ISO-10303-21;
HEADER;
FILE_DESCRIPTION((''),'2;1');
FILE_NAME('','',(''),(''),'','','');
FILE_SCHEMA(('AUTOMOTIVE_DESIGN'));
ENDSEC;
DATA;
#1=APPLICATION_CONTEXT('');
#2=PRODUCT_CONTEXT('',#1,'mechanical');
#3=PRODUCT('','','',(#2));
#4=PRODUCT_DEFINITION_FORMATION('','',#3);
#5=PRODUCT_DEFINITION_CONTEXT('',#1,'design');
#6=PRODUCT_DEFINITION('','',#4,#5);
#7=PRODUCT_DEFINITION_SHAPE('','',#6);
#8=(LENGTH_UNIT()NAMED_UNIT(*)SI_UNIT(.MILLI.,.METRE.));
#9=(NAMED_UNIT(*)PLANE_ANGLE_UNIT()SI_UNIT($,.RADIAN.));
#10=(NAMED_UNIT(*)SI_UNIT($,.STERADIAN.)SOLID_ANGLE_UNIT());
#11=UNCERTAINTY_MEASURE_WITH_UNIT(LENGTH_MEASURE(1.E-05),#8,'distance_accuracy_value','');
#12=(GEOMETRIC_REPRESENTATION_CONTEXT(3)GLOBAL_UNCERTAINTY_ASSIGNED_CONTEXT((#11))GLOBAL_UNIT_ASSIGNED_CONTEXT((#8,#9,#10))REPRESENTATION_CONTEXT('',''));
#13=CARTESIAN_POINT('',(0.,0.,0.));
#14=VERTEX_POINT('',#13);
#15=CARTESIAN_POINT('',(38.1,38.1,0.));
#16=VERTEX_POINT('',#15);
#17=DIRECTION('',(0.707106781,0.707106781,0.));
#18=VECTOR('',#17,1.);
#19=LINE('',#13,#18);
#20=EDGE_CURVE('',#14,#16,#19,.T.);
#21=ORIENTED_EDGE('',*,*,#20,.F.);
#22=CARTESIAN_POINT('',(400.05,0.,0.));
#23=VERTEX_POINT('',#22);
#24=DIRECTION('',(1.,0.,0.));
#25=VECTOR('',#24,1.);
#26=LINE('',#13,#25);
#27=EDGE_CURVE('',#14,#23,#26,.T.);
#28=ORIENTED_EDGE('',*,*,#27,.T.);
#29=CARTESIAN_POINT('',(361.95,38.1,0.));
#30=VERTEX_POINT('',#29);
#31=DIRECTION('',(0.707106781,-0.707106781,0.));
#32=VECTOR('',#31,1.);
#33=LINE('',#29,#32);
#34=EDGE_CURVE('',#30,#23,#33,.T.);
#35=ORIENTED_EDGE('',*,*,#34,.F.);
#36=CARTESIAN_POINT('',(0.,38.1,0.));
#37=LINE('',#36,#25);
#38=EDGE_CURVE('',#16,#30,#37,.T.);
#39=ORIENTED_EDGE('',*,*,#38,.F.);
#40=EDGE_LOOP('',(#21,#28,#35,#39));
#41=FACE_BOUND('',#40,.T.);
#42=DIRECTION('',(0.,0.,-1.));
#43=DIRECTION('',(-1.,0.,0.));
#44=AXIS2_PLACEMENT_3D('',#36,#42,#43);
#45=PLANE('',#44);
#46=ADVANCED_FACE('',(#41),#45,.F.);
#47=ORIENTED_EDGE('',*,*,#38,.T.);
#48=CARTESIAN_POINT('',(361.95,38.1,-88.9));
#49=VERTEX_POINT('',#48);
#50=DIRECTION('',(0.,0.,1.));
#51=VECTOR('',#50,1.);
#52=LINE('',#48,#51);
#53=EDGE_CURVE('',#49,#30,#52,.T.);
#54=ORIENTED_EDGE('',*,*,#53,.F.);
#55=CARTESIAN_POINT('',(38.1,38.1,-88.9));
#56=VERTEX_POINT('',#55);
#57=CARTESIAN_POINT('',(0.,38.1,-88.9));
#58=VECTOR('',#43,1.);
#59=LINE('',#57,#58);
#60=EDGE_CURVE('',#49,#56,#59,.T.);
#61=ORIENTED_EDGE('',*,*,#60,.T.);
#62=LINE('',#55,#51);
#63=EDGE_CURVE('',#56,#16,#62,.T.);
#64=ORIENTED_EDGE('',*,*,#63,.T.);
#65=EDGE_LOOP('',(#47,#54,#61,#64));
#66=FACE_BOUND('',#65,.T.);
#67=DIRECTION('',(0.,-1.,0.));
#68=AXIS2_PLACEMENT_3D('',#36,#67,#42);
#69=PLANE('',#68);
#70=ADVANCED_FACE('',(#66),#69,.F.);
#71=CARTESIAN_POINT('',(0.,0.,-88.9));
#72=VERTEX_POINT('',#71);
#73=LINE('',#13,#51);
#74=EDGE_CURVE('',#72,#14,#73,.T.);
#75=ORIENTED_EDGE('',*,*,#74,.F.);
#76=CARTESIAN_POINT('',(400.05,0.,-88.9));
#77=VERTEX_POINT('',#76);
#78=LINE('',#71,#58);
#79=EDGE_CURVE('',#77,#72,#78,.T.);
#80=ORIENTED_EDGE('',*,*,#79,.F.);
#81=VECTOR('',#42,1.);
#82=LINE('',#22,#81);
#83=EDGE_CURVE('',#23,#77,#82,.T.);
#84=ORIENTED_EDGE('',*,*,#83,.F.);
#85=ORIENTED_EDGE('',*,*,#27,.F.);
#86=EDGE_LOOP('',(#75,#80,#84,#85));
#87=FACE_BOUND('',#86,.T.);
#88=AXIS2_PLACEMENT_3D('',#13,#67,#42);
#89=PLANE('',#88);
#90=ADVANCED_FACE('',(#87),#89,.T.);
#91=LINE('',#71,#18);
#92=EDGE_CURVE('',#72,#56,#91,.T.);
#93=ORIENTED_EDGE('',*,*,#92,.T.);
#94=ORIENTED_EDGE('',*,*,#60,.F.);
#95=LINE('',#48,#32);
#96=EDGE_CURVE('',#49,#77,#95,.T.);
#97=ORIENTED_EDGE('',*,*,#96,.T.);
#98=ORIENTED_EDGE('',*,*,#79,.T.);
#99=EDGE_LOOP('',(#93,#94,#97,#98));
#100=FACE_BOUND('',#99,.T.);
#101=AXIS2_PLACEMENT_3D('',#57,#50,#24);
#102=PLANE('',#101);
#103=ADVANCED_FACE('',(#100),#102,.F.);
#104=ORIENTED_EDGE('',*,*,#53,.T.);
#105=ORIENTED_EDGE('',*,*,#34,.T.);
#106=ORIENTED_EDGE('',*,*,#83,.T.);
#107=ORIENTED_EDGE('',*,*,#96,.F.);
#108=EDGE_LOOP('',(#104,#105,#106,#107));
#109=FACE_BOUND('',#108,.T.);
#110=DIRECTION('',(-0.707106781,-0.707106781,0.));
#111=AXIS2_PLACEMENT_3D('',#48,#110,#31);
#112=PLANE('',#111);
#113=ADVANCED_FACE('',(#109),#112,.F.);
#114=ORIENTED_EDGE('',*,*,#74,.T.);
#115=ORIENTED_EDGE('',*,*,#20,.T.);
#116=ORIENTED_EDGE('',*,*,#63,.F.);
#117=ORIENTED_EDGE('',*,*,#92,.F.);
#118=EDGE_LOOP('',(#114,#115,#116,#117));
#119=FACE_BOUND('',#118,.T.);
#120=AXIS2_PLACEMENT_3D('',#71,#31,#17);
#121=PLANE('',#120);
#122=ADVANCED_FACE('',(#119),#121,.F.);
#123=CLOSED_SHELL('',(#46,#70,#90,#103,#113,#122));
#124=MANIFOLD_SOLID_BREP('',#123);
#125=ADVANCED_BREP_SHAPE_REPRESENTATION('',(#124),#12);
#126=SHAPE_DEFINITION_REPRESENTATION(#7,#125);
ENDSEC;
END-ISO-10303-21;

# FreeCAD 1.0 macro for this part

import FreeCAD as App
import Part
import Sketcher
from FreeCAD import Vector
Q = App.Units.Quantity


def add_polygon(sketch, points):
    """Adds a closed chain of lines whose ends are joined by coincident constraints."""
    first, n = sketch.GeometryCount, len(points)
    for a, b in zip(points, points[1:] + points[:1]):
        sketch.addGeometry(Part.LineSegment(App.Vector(*a, 0), App.Vector(*b, 0)), False)
    for i in range(n):
        sketch.addConstraint(Sketcher.Constraint("Coincident", first + i, 2, first + (i + 1) % n, 1))

doc = App.newDocument("Part")
params = doc.addObject("Spreadsheet::Sheet", "Params")
for row, (alias, value) in enumerate([
    ("sketch1_height", "3.5 in"),
    ("sketch1_width", "15.75 in"),
    ("pad1_length", "1.5 in"),
    ("sketch2_width", "1.5 in"),
], start=1):
    params.set(f"A{row}", alias)
    params.set(f"B{row}", "=" + value)
    params.setAlias(f"B{row}", alias)

body = doc.addObject("PartDesign::Body", "Body")

# Sketch on XZ plane
sketch1 = body.newObject("Sketcher::SketchObject", "Sketch")
sketch1.AttachmentSupport = (doc.getObject("XZ_Plane"), [""])
sketch1.MapMode = "FlatFace"
add_polygon(sketch1, [(0, -89), (0, 0), (400, 0), (400, -89)])  # lines 0-3
sketch1.addConstraint(Sketcher.Constraint("Vertical", 0))
sketch1.addConstraint(Sketcher.Constraint("Horizontal", 1))
sketch1.addConstraint(Sketcher.Constraint("Vertical", 2))
sketch1.addConstraint(Sketcher.Constraint("Horizontal", 3))
sketch1.addConstraint(Sketcher.Constraint("Coincident", 0, 2, -1, 1))
sketch1.addConstraint(Sketcher.Constraint("DistanceY", 0, 1, 0, 2, Q("3.5 in")))
sketch1.addConstraint(Sketcher.Constraint("DistanceX", 1, 1, 1, 2, Q("15.75 in")))
sketch1.setExpression("Constraints[9]", "Params.sketch1_height")
sketch1.setExpression("Constraints[10]", "Params.sketch1_width")
pad1 = body.newObject("PartDesign::Pad", "Pad")
pad1.Profile = sketch1
pad1.setExpression("Length", "Params.pad1_length")
pad1.Reversed = True

# Sketch on XY plane
sketch2 = body.newObject("Sketcher::SketchObject", "Sketch001")
sketch2.AttachmentSupport = (doc.getObject("XY_Plane"), [""])
sketch2.MapMode = "FlatFace"
add_polygon(sketch2, [(0, 0), (38, 38), (0, 38)])  # lines 0-2
add_polygon(sketch2, [(400, 0), (400, 38), (362, 38)])  # lines 3-5
sketch2.addConstraint(Sketcher.Constraint("Horizontal", 1))
sketch2.addConstraint(Sketcher.Constraint("Vertical", 2))
sketch2.addConstraint(Sketcher.Constraint("Vertical", 3))
sketch2.addConstraint(Sketcher.Constraint("Horizontal", 4))
sketch2.addConstraint(Sketcher.Constraint("Coincident", 2, 2, -1, 1))
sketch2.addConstraint(Sketcher.Constraint("PointOnObject", 5, 2, -1))
sketch2.addConstraint(Sketcher.Constraint("Perpendicular", 0, 5))
sketch2.addConstraint(Sketcher.Constraint("Horizontal", 1, 2, 3, 2))
sketch2.addConstraint(Sketcher.Constraint("Equal", 1, 4))
sketch2.addConstraint(Sketcher.Constraint("DistanceX", 1, 2, 1, 1, Q("1.5 in")))
sketch2.addConstraint(Sketcher.Constraint("DistanceX", -1, 1, 3, 2, Q("15.75 in")))
sketch2.setExpression("Constraints[15]", "Params.sketch2_width")
pocket1 = body.newObject("PartDesign::Pocket", "Pocket")
pocket1.Profile = sketch2
pocket1.Type = "ThroughAll"

doc.recompute()
